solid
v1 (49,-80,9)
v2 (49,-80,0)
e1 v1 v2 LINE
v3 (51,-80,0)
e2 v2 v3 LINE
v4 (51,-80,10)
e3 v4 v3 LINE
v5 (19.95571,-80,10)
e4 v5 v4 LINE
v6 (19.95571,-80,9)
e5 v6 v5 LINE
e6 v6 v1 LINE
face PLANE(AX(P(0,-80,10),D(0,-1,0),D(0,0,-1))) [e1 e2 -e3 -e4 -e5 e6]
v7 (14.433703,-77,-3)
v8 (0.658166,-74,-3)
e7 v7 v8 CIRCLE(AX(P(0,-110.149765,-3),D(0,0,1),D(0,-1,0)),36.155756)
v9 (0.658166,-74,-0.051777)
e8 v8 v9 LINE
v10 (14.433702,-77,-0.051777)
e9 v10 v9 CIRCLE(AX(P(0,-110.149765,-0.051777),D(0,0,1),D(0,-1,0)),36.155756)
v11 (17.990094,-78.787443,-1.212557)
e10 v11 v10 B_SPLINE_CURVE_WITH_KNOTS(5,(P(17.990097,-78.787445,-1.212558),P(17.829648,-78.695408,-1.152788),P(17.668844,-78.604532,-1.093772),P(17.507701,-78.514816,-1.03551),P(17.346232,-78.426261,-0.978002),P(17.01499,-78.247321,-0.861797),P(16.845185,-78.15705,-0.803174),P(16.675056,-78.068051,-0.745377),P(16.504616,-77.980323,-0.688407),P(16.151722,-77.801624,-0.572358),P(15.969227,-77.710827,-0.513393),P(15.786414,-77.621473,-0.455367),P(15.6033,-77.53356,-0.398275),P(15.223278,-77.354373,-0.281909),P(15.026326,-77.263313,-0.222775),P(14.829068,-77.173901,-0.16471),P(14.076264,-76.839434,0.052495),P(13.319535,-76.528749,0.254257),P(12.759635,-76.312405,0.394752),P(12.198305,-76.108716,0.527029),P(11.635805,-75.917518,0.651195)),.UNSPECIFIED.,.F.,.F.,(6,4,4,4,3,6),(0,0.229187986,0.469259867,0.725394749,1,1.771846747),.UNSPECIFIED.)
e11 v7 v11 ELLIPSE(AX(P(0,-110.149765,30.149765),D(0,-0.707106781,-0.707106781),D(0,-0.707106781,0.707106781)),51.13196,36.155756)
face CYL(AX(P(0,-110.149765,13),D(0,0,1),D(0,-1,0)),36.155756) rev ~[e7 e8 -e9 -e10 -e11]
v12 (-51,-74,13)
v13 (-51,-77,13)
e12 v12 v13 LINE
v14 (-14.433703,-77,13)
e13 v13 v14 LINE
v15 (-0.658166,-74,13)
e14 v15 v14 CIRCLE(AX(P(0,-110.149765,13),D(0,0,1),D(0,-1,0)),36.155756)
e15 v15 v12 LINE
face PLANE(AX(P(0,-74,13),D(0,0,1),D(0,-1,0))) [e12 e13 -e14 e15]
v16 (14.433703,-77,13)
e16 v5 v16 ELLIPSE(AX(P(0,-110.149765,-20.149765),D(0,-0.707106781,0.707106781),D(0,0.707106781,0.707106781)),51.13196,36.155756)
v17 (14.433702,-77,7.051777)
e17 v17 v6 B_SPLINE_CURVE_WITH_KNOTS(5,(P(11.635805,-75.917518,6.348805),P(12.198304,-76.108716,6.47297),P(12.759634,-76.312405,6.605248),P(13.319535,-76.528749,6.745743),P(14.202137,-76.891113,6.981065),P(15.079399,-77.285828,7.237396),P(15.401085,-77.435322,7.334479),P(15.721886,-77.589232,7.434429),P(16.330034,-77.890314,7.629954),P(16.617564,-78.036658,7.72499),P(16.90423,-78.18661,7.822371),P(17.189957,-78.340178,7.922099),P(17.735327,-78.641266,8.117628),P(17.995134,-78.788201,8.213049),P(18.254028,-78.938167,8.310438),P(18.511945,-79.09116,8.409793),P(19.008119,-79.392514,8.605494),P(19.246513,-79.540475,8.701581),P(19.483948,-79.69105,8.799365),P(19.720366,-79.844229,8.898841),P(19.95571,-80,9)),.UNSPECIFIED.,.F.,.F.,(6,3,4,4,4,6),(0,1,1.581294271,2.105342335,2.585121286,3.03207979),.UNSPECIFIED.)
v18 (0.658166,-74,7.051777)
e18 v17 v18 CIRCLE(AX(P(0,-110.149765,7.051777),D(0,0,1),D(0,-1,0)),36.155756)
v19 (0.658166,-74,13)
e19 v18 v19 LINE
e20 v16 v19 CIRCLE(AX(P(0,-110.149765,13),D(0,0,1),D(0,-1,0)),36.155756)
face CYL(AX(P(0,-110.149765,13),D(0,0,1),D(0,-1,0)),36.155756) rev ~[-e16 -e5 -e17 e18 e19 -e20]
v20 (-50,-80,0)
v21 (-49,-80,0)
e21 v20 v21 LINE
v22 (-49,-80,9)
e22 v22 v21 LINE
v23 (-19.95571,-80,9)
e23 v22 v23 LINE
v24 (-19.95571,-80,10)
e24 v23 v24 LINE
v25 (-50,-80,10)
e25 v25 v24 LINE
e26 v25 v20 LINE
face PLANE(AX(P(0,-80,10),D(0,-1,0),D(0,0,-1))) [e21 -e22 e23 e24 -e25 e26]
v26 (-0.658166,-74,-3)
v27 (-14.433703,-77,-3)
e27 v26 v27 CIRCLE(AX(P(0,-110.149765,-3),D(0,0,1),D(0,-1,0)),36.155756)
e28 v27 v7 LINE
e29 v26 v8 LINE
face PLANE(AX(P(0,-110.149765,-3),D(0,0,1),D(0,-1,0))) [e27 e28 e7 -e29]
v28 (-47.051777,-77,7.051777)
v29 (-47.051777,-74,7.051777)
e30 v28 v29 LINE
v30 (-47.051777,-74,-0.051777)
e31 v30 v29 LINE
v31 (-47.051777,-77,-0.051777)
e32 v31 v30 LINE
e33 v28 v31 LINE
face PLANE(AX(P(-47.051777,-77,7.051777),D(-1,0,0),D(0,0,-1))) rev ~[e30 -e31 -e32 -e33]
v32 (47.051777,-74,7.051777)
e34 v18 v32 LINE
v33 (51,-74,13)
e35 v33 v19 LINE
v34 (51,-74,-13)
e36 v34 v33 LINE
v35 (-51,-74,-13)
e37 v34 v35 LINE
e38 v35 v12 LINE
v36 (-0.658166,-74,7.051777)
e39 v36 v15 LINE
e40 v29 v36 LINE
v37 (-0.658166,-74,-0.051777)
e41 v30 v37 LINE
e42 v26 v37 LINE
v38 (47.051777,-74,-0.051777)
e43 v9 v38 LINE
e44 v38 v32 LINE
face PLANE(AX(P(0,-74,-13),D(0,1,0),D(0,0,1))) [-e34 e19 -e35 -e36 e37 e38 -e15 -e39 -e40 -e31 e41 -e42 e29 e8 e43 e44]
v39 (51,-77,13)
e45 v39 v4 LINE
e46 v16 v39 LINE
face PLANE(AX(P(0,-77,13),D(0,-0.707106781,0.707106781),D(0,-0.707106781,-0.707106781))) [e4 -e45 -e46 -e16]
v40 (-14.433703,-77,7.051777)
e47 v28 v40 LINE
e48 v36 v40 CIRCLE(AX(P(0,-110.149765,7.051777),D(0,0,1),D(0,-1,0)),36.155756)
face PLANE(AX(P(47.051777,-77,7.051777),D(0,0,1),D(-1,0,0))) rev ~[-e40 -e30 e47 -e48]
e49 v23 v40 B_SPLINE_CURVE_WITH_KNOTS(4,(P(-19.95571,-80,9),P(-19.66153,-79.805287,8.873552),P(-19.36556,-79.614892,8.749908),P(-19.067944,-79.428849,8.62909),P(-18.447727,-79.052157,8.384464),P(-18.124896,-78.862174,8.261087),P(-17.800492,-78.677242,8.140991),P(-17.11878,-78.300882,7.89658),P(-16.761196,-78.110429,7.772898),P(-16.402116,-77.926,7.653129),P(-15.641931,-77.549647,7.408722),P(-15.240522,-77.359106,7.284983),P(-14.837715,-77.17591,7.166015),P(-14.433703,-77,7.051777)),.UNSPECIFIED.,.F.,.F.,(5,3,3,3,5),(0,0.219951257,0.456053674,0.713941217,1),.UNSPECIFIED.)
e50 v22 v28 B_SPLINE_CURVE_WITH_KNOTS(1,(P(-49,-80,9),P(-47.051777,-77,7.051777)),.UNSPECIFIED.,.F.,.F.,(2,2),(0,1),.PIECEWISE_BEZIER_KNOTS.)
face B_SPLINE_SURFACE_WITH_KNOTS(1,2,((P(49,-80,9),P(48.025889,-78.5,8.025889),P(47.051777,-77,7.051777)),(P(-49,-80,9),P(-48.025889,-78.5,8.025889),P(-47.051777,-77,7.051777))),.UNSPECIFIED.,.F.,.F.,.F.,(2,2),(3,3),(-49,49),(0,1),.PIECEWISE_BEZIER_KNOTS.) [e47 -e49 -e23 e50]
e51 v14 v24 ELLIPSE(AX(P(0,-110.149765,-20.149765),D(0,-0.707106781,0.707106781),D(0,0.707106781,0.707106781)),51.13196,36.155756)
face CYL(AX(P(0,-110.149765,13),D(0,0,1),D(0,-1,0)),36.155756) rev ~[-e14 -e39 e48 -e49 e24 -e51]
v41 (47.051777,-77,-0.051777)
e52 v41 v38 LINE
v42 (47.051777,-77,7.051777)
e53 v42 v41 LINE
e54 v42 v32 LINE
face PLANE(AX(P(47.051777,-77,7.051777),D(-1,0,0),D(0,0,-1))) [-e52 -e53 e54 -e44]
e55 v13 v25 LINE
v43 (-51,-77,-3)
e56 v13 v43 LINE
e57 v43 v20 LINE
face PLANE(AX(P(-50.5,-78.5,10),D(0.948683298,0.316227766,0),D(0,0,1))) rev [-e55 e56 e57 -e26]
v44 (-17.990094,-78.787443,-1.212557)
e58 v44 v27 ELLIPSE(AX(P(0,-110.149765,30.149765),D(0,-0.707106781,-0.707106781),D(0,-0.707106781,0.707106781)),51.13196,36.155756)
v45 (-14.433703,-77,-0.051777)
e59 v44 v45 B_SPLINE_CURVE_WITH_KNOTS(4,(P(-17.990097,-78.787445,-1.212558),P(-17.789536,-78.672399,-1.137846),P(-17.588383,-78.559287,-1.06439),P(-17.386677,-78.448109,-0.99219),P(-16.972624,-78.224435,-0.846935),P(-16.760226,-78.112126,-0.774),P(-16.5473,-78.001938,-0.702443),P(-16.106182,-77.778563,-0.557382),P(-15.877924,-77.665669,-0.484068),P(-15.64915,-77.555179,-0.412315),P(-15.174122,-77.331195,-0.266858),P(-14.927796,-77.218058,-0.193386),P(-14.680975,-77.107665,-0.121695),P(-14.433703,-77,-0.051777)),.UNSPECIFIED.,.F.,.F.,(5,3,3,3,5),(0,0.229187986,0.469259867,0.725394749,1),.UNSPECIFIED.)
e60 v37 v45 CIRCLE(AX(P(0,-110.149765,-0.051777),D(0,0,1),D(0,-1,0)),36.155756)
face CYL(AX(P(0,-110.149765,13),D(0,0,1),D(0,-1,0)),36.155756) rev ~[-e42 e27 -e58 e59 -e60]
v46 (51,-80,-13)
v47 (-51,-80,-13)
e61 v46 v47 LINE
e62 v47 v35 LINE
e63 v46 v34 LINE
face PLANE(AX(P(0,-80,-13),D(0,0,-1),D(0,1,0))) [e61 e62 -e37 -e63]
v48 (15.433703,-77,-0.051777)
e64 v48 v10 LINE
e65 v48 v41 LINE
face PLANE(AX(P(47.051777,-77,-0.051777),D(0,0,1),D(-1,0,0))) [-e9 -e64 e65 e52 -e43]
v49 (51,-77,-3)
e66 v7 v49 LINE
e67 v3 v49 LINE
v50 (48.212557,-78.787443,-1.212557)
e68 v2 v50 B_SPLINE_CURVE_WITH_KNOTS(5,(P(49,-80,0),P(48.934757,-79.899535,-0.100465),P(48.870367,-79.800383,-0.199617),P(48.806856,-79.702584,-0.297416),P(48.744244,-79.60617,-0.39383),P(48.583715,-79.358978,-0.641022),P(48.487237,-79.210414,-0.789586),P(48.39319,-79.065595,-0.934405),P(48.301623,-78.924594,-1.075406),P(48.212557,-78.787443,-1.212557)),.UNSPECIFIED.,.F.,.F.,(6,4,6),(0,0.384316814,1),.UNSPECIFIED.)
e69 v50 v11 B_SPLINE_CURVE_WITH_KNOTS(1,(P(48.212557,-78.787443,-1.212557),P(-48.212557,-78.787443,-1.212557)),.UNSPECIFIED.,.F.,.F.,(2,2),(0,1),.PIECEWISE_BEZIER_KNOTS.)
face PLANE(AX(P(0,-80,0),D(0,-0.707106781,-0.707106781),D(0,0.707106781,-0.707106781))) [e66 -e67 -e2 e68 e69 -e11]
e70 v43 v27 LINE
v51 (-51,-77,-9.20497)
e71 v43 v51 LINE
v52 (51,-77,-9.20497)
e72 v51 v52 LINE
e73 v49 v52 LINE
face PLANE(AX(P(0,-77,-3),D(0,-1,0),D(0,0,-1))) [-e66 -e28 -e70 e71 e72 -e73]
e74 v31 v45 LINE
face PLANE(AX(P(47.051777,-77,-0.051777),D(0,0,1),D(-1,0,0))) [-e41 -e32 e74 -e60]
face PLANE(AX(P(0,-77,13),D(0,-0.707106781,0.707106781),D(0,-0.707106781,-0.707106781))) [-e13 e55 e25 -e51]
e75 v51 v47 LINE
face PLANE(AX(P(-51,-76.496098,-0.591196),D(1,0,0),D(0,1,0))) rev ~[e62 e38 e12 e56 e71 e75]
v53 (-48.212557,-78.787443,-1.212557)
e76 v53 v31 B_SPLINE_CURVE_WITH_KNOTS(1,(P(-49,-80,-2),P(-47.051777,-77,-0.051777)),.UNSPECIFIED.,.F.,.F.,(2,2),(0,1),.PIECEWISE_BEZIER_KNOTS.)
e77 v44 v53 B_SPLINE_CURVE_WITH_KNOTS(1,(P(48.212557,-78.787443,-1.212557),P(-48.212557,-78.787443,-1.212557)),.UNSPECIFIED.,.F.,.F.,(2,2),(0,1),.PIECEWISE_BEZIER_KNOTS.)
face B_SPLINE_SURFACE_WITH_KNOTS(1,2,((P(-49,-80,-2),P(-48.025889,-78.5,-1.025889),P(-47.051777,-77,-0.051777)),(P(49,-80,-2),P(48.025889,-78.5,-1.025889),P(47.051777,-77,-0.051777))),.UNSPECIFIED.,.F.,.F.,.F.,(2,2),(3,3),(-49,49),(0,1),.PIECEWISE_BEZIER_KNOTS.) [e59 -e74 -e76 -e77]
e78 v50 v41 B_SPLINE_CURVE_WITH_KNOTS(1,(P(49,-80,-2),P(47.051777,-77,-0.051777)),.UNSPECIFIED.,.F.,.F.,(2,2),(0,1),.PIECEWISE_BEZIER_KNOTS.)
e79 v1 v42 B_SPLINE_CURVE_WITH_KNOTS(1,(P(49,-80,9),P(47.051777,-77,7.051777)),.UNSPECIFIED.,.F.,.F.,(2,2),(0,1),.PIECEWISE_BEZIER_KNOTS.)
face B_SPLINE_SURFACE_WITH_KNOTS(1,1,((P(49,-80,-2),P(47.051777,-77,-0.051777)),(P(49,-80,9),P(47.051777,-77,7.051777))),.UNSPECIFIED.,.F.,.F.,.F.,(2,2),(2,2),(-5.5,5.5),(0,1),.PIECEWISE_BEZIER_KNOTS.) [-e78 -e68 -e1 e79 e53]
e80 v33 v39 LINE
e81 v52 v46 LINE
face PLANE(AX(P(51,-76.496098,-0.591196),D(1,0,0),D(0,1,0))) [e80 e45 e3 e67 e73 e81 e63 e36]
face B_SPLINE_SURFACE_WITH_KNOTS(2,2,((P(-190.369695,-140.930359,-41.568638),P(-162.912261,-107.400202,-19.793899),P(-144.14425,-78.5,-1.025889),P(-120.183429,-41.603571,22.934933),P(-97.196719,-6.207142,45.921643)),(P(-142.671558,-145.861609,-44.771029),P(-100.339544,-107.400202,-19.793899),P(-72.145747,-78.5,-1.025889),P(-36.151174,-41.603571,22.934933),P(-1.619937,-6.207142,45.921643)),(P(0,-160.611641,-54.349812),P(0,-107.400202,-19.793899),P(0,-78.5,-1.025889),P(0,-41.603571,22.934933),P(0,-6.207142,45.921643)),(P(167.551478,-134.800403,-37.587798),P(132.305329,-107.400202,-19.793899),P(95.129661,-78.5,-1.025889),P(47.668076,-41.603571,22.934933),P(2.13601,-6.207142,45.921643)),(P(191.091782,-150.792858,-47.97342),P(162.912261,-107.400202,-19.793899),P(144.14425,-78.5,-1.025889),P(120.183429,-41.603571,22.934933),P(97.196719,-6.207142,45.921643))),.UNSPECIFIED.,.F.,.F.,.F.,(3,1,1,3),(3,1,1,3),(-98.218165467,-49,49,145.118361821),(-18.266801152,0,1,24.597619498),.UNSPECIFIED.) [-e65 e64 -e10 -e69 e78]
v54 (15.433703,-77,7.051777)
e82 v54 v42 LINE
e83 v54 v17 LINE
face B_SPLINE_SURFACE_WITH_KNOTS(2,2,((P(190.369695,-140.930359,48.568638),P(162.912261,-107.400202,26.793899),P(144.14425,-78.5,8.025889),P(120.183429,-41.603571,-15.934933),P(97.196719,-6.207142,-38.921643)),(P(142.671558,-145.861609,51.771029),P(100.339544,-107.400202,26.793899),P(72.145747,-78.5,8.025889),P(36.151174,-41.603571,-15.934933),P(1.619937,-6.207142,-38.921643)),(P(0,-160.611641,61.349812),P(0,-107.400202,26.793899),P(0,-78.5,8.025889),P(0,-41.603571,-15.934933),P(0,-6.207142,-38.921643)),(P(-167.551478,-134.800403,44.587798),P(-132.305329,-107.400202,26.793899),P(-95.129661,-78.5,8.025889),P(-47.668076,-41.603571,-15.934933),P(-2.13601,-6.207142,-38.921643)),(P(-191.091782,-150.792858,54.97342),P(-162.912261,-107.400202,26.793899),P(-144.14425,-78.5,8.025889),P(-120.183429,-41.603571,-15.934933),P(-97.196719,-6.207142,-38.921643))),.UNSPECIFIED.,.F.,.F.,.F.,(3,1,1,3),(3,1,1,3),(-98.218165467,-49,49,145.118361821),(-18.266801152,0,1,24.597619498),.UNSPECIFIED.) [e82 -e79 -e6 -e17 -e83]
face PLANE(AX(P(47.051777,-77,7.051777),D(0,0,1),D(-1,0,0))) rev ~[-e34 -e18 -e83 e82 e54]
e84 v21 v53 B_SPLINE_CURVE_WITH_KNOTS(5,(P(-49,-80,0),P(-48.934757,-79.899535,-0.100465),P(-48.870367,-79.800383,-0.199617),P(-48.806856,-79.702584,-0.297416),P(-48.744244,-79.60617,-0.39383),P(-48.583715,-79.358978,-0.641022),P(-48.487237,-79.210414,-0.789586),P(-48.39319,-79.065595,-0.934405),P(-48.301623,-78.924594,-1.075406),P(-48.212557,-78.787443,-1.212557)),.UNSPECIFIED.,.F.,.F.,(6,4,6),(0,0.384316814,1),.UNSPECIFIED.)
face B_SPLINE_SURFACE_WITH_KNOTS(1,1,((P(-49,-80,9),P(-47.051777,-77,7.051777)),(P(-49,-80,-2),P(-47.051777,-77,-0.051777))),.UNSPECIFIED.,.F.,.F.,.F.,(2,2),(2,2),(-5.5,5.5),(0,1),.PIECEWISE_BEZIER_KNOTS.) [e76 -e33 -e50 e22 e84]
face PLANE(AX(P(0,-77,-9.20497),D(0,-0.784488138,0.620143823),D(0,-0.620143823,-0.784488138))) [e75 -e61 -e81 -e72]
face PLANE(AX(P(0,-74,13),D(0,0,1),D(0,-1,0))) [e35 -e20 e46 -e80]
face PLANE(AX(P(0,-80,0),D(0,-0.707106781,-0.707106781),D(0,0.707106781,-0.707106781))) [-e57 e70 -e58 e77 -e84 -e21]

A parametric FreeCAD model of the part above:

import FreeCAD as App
import Part
import Sketcher


def edges_at(feature, points):
    """Names of the edges that pass closest to the given points."""
    edges = feature.Shape.Edges
    near = lambda p: min(range(len(edges)), key=lambda i: edges[i].distToShape(Part.Vertex(*p))[0])
    return sorted({f"Edge{near(p) + 1}" for p in points})


def add_polygon(sketch, points):
    """Adds a closed chain of lines whose ends are joined by coincident constraints."""
    first, n = sketch.GeometryCount, len(points)
    for a, b in zip(points, points[1:] + points[:1]):
        sketch.addGeometry(Part.LineSegment(App.Vector(*a, 0), App.Vector(*b, 0)), False)
    for i in range(n):
        sketch.addConstraint(Sketcher.Constraint("Coincident", first + i, 2, first + (i + 1) % n, 1))

doc = App.newDocument("Part")
body = doc.addObject("PartDesign::Body", "Body")

# Sketch on YZ plane
sketch1 = doc.addObject("Sketcher::SketchObject", "Sketch")
body.addObject(sketch1)
sketch1.AttachmentSupport = (doc.YZ_Plane, [""])
sketch1.MapMode = "FlatFace"
add_polygon(sketch1, [(-74, 13), (-77, 13), (-80, 10), (-80, 0), (-77, -3), (-77, -9.2), (-80, -13), (-74, -13)])  # lines 0-7
sketch1.addConstraint([
    Sketcher.Constraint("Horizontal", 0),
    Sketcher.Constraint("Vertical", 2),
    Sketcher.Constraint("Vertical", 4),
    Sketcher.Constraint("Horizontal", 6),
    Sketcher.Constraint("Vertical", 7),
    Sketcher.Constraint("PointOnObject", 2, 2, -1),
    Sketcher.Constraint("Perpendicular", 1, 3),
    Sketcher.Constraint("Vertical", 0, 2, 3, 2),
    Sketcher.Constraint("Vertical", 2, 2, 5, 2),
    Sketcher.Constraint("Equal", 1, 3),
    Sketcher.Constraint("DistanceX", 0, 2, 0, 1, 3.0),
    Sketcher.Constraint("DistanceX", 6, 1, 6, 2, 6.0),
    Sketcher.Constraint("DistanceY", 2, 2, 2, 1, 10.0),
    Sketcher.Constraint("DistanceY", 7, 1, 7, 2, 26.0),
    Sketcher.Constraint("DistanceX", 0, 2, -1, 1, 77.0),
    Sketcher.Constraint("DistanceY", 4, 2, 4, 1, 6.20497),
])
pad1 = doc.addObject("PartDesign::Pad", "Pad")
body.addObject(pad1)
pad1.Profile = sketch1
pad1.Length = 102
pad1.Midplane = True

# Sketch on XZ plane
sketch2 = doc.addObject("Sketcher::SketchObject", "Sketch001")
body.addObject(sketch2)
sketch2.AttachmentSupport = (doc.XZ_Plane, [""])
sketch2.MapMode = "FlatFace"
sketch2.AttachmentOffset = App.Placement(App.Vector(0, 0, 80), App.Rotation())
add_polygon(sketch2, [(49, 9), (-49, 9), (-49, -2), (49, -2)])  # lines 0-3
sketch2.addConstraint([
    Sketcher.Constraint("Horizontal", 0),
    Sketcher.Constraint("Vertical", 1),
    Sketcher.Constraint("Horizontal", 2),
    Sketcher.Constraint("Vertical", 3),
    Sketcher.Constraint("DistanceX", 0, 2, 0, 1, 98.0),
    Sketcher.Constraint("DistanceY", 1, 2, 1, 1, 11.0),
    Sketcher.Constraint("DistanceX", 0, 2, -1, 1, 49.0),
    Sketcher.Constraint("DistanceY", -1, 1, 0, 2, 9.0),
])
pocket1 = doc.addObject("PartDesign::Pocket", "Pocket")
body.addObject(pocket1)
pocket1.Profile = sketch2
pocket1.Length = 3
pocket1.TaperAngle = -33

# Sketch on XY plane
sketch3 = doc.addObject("Sketcher::SketchObject", "Sketch002")
body.addObject(sketch3)
sketch3.AttachmentSupport = (doc.XY_Plane, [""])
sketch3.MapMode = "FlatFace"
sketch3.AttachmentOffset = App.Placement(App.Vector(0, 0, 13), App.Rotation())
sketch3.addGeometry(Part.Circle(App.Vector(0, -110, 0), App.Vector(0, 0, 1), 36), False)
sketch3.addConstraint([
    Sketcher.Constraint("PointOnObject", 0, 3, -2),
    Sketcher.Constraint("Diameter", 0, 72.311512),
    Sketcher.Constraint("DistanceY", 0, 3, -1, 1, 110.149765),
])
pocket2 = doc.addObject("PartDesign::Pocket", "Pocket001")
body.addObject(pocket2)
pocket2.Profile = sketch3
pocket2.Length = 16
doc.recompute()

chamfer = doc.addObject("PartDesign::Chamfer", "Chamfer")
body.addObject(chamfer)
chamfer.Base = (pocket2, edges_at(pocket2, [(14.434, -77, 3.5)]))
chamfer.ChamferType = "Two distances"
chamfer.Size = 3
chamfer.Size2 = 1
doc.recompute()

chamfer2 = doc.addObject("PartDesign::Chamfer", "Chamfer001")
body.addObject(chamfer2)
chamfer2.Base = (chamfer, edges_at(chamfer, [(-51, -80, 5)]))
chamfer2.ChamferType = "Two distances"
chamfer2.Size = 3
chamfer2.Size2 = 1

# Sketch on XZ plane
sketch4 = doc.addObject("Sketcher::SketchObject", "Sketch003")
body.addObject(sketch4)
sketch4.AttachmentSupport = (doc.XZ_Plane, [""])
sketch4.MapMode = "FlatFace"
sketch4.AttachmentOffset = App.Placement(App.Vector(0, 0, 77), App.Rotation())
add_polygon(sketch4, [(47, 0), (47, 7), (-47, 7), (-47, 0)])  # lines 0-3
sketch4.addConstraint([
    Sketcher.Constraint("Vertical", 0),
    Sketcher.Constraint("Horizontal", 1),
    Sketcher.Constraint("Vertical", 2),
    Sketcher.Constraint("Horizontal", 3),
    Sketcher.Constraint("DistanceX", 1, 2, 1, 1, 94.103554),
    Sketcher.Constraint("DistanceY", 0, 1, 0, 2, 7.103554),
    Sketcher.Constraint("DistanceX", -1, 1, 0, 2, 47.051777),
    Sketcher.Constraint("DistanceY", -1, 1, 0, 2, 7.051777),
])
pocket3 = doc.addObject("PartDesign::Pocket", "Pocket002")
body.addObject(pocket3)
pocket3.Profile = sketch4
pocket3.Length = 5

doc.recompute()
